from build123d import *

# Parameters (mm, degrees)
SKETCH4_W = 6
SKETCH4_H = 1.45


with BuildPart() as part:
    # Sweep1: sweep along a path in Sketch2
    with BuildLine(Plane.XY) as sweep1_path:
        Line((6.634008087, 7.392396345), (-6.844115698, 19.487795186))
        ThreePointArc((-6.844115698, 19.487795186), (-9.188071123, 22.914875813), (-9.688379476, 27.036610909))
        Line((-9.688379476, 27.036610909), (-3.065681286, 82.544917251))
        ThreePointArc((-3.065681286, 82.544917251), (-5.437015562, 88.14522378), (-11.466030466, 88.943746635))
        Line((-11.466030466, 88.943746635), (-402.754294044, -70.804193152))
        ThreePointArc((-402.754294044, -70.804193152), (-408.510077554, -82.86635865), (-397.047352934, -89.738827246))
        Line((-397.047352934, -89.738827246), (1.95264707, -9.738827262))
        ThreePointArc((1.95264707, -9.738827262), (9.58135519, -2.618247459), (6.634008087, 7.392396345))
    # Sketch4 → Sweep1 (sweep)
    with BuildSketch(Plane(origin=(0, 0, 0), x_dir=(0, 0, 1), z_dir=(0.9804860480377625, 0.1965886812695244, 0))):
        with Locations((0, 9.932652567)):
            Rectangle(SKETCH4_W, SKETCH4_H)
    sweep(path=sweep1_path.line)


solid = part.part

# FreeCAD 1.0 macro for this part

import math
import FreeCAD as App
import Part
import Sketcher
from FreeCAD import Vector
Q = App.Units.Quantity


def add_polygon(sketch, points):
    """Adds a closed chain of lines whose ends are joined by coincident constraints."""
    first, n = sketch.GeometryCount, len(points)
    for a, b in zip(points, points[1:] + points[:1]):
        sketch.addGeometry(Part.LineSegment(App.Vector(*a, 0), App.Vector(*b, 0)), False)
    for i in range(n):
        sketch.addConstraint(Sketcher.Constraint("Coincident", first + i, 2, first + (i + 1) % n, 1))

doc = App.newDocument("Part")
body = doc.addObject("PartDesign::Body", "Body")

# Sketch on an angled plane
sketch1 = doc.addObject("Sketcher::SketchObject", "Sketch")
body.addObject(sketch1)
sketch1.Placement = App.Placement(Vector(0, 0, 0), App.Rotation(Vector(0, 0, 1), Vector(0.196588681, -0.980486048, 0), Vector(0.980486048, 0.196588681, 0), "ZXY"))
add_polygon(sketch1, [(-3, 10.7), (-3, 9.2), (3, 9.2), (3, 10.7)])  # lines 0-3
sketch1.addConstraint([
    Sketcher.Constraint("Vertical", 0),
    Sketcher.Constraint("Horizontal", 1),
    Sketcher.Constraint("Vertical", 2),
    Sketcher.Constraint("Horizontal", 3),
    Sketcher.Constraint("DistanceX", 1, 1, 1, 2, Q("6 mm")),
    Sketcher.Constraint("DistanceX", 0, 2, -1, 1, Q("3 mm")),
    Sketcher.Constraint("DistanceY", 0, 2, 0, 1, Q("1.45 mm")),
    Sketcher.Constraint("DistanceY", -1, 1, 0, 2, Q("9.207653 mm")),
])

# Sketch on XY plane
sketch2 = doc.addObject("Sketcher::SketchObject", "Sketch001")
body.addObject(sketch2)
sketch2.AttachmentSupport = (doc.XY_Plane, [""])
sketch2.MapMode = "FlatFace"
sketch2.addGeometry([
    Part.LineSegment(Vector(7, 7, 0), Vector(-7, 19, 0)),  # 0
    Part.ArcOfCircle(Part.Circle(Vector(-1, 26, 0), Vector(0, 0, 1), 9), math.radians(173), math.radians(228)),  # 1
    Part.LineSegment(Vector(-10, 27, 0), Vector(-3, 83, 0)),  # 2
    Part.ArcOfCircle(Part.Circle(Vector(-9, 83, 0), Vector(0, 0, 1), 6), math.radians(-7), math.radians(112)),  # 3
    Part.LineSegment(Vector(-11, 89, 0), Vector(-403, -71, 0)),  # 4
    Part.ArcOfCircle(Part.Circle(Vector(-399, -80, 0), Vector(0, 0, 1), 10), math.radians(112), math.radians(281)),  # 5
    Part.LineSegment(Vector(-397, -90, 0), Vector(2, -10, 0)),  # 6
    Part.ArcOfCircle(Part.Circle(Vector(0, 0, 0), Vector(0, 0, 1), 10), math.radians(-79), math.radians(48)),  # 7
], False)
sketch2.addConstraint([
    Sketcher.Constraint("Tangent", 0, 2, 1, 2),
    Sketcher.Constraint("Tangent", 1, 1, 2, 1),
    Sketcher.Constraint("Tangent", 2, 2, 3, 1),
    Sketcher.Constraint("Tangent", 3, 2, 4, 1),
    Sketcher.Constraint("Tangent", 4, 2, 5, 1),
    Sketcher.Constraint("Tangent", 5, 2, 6, 1),
    Sketcher.Constraint("Tangent", 6, 2, 7, 1),
    Sketcher.Constraint("Tangent", 7, 2, 0, 1),
    Sketcher.Constraint("Coincident", 7, 3, -1, 1),
    Sketcher.Constraint("Equal", 5, 7),
    Sketcher.Constraint("Radius", 1, Q("8.75 mm")),
    Sketcher.Constraint("DistanceX", 1, 3, -1, 1, Q("1 mm")),
    Sketcher.Constraint("DistanceY", -1, 1, 1, 3, Q("26 mm")),
    Sketcher.Constraint("DistanceX", 5, 3, -1, 1, Q("399 mm")),
    Sketcher.Constraint("DistanceY", 5, 3, -1, 1, Q("80 mm")),
    Sketcher.Constraint("DistanceX", 3, 3, -1, 1, Q("9.15 mm")),
    Sketcher.Constraint("Radius", 3, Q("6.12747 mm")),
    Sketcher.Constraint("Radius", 5, Q("9.932653 mm")),
    Sketcher.Constraint("DistanceY", 2, 2, 3, 3, Q("0.72592 mm")),
])
doc.recompute()

additivepipe = doc.addObject("PartDesign::AdditivePipe", "AdditivePipe")
body.addObject(additivepipe)
additivepipe.Profile = sketch1
additivepipe.Spine = (sketch2, ["Edge1", "Edge2", "Edge3", "Edge4", "Edge5", "Edge6", "Edge7", "Edge8"])

doc.recompute()
